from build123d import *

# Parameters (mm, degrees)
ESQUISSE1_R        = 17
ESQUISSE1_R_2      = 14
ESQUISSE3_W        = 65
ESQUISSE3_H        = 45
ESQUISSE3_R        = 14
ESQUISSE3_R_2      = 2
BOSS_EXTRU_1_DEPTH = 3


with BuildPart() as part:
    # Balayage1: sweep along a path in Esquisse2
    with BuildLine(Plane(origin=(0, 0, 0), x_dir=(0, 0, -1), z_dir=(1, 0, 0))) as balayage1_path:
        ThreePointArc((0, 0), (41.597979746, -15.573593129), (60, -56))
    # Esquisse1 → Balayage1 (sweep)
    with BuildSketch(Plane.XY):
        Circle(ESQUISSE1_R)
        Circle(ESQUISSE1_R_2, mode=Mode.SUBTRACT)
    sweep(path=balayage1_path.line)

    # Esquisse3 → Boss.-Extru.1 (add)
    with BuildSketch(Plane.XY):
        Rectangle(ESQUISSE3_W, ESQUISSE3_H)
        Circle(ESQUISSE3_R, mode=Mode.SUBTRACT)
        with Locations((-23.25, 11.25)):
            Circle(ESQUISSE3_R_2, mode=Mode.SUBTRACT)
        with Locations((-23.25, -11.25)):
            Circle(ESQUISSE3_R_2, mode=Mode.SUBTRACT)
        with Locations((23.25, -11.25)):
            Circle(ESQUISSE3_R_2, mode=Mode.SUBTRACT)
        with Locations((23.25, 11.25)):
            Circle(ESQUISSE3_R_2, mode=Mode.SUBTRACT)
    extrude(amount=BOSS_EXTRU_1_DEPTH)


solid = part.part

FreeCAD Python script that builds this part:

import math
import FreeCAD as App
import Part
import Sketcher
from FreeCAD import Vector

doc = App.newDocument("Part")
body = doc.addObject("PartDesign::Body", "Body")

sketch1 = body.newObject("Sketcher::SketchObject", "Sketch")
sketch1.AttachmentSupport = (doc.getObject("XY_Plane"), [""])
sketch1.MapMode = "FlatFace"
sketch1.addGeometry(Part.Circle(Vector(0, 0, 0), Vector(0, 0, 1), 17), False)
sketch1.addGeometry(Part.Circle(Vector(0, 0, 0), Vector(0, 0, 1), 14), False)
sketch1.addConstraint(Sketcher.Constraint("Coincident", 0, 3, -1, 1))
sketch1.addConstraint(Sketcher.Constraint("Coincident", 1, 3, -1, 1))
sketch1.addConstraint(Sketcher.Constraint("Diameter", 0, 34.0))
sketch1.addConstraint(Sketcher.Constraint("Diameter", 1, 28.0))

sketch2 = body.newObject("Sketcher::SketchObject", "Sketch001")
sketch2.AttachmentSupport = (doc.getObject("YZ_Plane"), [""])
sketch2.MapMode = "FlatFace"
sketch2.addGeometry(Part.ArcOfCircle(Part.Circle(Vector(-58, -2, 0), Vector(0, 0, 1), 58), math.radians(-88), math.radians(2)), False)
sketch2.addConstraint(Sketcher.Constraint("Coincident", 0, 2, -1, 1))
sketch2.addConstraint(Sketcher.Constraint("DistanceX", 0, 3, -1, 1, 58.0))
sketch2.addConstraint(Sketcher.Constraint("DistanceY", 0, 3, -1, 1, 2.0))
sketch2.addConstraint(Sketcher.Constraint("DistanceX", 0, 1, -1, 1, 56.0))
doc.recompute()

additivepipe = body.newObject("PartDesign::AdditivePipe", "AdditivePipe")
additivepipe.Profile = sketch1
additivepipe.Spine = (sketch2, ["Edge1"])

sketch3 = body.newObject("Sketcher::SketchObject", "Sketch002")
sketch3.AttachmentSupport = (doc.getObject("XY_Plane"), [""])
sketch3.MapMode = "FlatFace"
sketch3.addGeometry(Part.LineSegment(Vector(-32.5, 22.5, 0), Vector(-32.5, -22.5, 0)), False)
sketch3.addGeometry(Part.LineSegment(Vector(-32.5, -22.5, 0), Vector(32.5, -22.5, 0)), False)
sketch3.addGeometry(Part.LineSegment(Vector(32.5, -22.5, 0), Vector(32.5, 22.5, 0)), False)
sketch3.addGeometry(Part.LineSegment(Vector(32.5, 22.5, 0), Vector(-32.5, 22.5, 0)), False)
sketch3.addGeometry(Part.Circle(Vector(-23.2, -11.2, 0), Vector(0, 0, 1), 2), False)
sketch3.addGeometry(Part.Circle(Vector(23.2, -11.2, 0), Vector(0, 0, 1), 2), False)
sketch3.addGeometry(Part.Circle(Vector(-23.2, 11.2, 0), Vector(0, 0, 1), 2), False)
sketch3.addGeometry(Part.Circle(Vector(0, 0, 0), Vector(0, 0, 1), 14), False)
sketch3.addGeometry(Part.Circle(Vector(23.2, 11.2, 0), Vector(0, 0, 1), 2), False)
sketch3.addConstraint(Sketcher.Constraint("Coincident", 0, 2, 1, 1))
sketch3.addConstraint(Sketcher.Constraint("Coincident", 1, 2, 2, 1))
sketch3.addConstraint(Sketcher.Constraint("Coincident", 2, 2, 3, 1))
sketch3.addConstraint(Sketcher.Constraint("Coincident", 3, 2, 0, 1))
sketch3.addConstraint(Sketcher.Constraint("Vertical", 0))
sketch3.addConstraint(Sketcher.Constraint("Horizontal", 1))
sketch3.addConstraint(Sketcher.Constraint("Vertical", 2))
sketch3.addConstraint(Sketcher.Constraint("Horizontal", 3))
sketch3.addConstraint(Sketcher.Constraint("Coincident", 7, 3, -1, 1))
sketch3.addConstraint(Sketcher.Constraint("Equal", 4, 5))
sketch3.addConstraint(Sketcher.Constraint("Equal", 5, 6))
sketch3.addConstraint(Sketcher.Constraint("Equal", 6, 8))
sketch3.addConstraint(Sketcher.Constraint("Symmetric", 5, 3, 6, 3, -1, 1))
sketch3.addConstraint(Sketcher.Constraint("Symmetric", 4, 3, 8, 3, -1, 1))
sketch3.addConstraint(Sketcher.Constraint("Symmetric", 0, 2, 2, 2, -1, 1))
sketch3.addConstraint(Sketcher.Constraint("Symmetric", 4, 3, 5, 3, -2))
sketch3.addConstraint(Sketcher.Constraint("Diameter", 4, 4.0))
sketch3.addConstraint(Sketcher.Constraint("Diameter", 7, 28.0))
sketch3.addConstraint(Sketcher.Constraint("DistanceX", 1, 1, 1, 2, 65.0))
sketch3.addConstraint(Sketcher.Constraint("DistanceY", 0, 2, 0, 1, 45.0))
sketch3.addConstraint(Sketcher.Constraint("DistanceX", 4, 3, 5, 3, 46.5))
sketch3.addConstraint(Sketcher.Constraint("DistanceY", 4, 3, 6, 3, 22.5))
pad1 = body.newObject("PartDesign::Pad", "Pad")
pad1.Profile = sketch3
pad1.Length = 3

doc.recompute()
